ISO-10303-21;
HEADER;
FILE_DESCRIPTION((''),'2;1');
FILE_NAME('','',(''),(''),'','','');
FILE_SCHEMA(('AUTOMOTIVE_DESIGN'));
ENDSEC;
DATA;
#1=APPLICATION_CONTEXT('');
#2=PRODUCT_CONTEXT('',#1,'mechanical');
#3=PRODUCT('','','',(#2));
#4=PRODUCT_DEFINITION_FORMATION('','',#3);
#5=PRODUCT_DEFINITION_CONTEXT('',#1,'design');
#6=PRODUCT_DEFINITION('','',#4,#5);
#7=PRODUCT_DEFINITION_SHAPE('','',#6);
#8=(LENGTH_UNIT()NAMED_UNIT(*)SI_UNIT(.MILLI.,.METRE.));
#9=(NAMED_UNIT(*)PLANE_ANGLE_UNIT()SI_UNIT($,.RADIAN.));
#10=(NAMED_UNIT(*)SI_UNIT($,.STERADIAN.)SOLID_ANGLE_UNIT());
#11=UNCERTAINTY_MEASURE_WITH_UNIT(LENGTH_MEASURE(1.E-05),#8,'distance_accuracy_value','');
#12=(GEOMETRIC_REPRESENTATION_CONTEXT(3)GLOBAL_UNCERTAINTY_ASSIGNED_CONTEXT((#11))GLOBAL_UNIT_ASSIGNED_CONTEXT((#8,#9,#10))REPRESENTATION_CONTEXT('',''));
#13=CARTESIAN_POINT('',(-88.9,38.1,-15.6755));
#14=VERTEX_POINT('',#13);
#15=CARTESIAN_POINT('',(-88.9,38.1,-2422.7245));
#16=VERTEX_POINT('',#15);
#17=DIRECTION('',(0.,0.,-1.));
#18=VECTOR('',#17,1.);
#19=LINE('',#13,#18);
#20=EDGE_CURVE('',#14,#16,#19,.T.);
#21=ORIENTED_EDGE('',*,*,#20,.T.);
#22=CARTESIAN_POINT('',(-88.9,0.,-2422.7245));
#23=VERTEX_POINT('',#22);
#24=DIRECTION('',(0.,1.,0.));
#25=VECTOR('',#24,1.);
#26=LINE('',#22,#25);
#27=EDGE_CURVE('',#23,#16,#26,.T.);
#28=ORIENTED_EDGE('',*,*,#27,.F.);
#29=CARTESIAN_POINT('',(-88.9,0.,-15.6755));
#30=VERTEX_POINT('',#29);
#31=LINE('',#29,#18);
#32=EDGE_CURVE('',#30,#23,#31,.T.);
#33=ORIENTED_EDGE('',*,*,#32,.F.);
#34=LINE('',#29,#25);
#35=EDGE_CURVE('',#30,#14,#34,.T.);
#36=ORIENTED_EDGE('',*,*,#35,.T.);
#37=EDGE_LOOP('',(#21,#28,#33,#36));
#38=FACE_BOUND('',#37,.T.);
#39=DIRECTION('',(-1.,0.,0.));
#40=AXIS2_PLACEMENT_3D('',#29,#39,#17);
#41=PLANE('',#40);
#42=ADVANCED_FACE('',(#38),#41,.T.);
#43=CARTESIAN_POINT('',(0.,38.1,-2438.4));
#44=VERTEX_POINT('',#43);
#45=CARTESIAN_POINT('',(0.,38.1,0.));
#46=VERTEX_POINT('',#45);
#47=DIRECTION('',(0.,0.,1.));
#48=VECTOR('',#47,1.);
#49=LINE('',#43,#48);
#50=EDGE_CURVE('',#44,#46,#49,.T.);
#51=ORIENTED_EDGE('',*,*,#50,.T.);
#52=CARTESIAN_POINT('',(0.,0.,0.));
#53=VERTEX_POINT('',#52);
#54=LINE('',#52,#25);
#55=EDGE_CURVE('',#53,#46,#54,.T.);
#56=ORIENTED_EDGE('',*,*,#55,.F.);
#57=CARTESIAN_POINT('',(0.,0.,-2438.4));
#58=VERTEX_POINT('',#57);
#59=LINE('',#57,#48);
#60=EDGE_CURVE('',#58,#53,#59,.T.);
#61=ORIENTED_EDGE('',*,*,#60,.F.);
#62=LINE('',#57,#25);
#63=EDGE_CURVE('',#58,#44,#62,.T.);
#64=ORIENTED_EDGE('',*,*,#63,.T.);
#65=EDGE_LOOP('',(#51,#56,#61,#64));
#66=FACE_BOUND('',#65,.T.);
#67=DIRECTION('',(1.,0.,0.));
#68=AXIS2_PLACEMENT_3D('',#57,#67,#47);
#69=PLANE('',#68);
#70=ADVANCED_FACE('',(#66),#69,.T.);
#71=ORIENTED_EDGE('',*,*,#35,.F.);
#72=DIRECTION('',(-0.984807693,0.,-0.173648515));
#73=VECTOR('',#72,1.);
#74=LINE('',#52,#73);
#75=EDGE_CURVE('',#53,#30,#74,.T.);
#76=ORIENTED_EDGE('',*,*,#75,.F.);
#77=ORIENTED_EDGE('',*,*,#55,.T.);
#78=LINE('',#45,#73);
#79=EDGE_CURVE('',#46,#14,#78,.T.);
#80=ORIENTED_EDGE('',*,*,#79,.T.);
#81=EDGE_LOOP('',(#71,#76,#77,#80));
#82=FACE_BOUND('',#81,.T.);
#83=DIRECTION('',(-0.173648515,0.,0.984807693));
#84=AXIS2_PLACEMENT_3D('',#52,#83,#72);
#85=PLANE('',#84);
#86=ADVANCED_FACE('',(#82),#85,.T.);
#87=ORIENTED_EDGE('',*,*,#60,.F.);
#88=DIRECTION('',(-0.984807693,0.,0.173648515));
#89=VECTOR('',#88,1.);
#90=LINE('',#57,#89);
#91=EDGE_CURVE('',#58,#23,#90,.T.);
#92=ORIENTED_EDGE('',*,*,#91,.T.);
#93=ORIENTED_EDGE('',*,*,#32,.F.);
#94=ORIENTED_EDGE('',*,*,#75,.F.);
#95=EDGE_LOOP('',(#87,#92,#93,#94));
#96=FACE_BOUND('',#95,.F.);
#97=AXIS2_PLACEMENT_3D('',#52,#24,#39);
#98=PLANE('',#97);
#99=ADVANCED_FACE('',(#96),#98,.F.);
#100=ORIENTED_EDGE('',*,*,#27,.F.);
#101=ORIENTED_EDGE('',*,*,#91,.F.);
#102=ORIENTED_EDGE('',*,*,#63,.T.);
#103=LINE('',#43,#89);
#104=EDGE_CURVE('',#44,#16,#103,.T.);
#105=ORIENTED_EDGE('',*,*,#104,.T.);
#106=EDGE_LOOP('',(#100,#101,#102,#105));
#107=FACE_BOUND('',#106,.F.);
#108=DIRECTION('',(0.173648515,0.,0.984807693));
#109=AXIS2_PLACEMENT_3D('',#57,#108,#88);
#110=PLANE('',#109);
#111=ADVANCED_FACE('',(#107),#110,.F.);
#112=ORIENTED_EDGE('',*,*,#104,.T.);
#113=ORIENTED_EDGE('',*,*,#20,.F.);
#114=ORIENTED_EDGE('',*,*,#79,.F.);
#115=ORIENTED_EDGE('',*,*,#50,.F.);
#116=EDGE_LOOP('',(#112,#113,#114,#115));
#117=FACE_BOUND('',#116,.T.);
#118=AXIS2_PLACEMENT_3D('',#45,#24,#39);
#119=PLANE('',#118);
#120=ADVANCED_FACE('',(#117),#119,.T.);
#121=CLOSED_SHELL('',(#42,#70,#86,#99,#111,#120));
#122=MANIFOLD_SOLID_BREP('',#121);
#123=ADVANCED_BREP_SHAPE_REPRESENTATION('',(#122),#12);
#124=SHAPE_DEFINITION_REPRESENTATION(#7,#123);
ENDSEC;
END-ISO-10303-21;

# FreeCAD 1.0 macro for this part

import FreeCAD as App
import Part
import Sketcher
Q = App.Units.Quantity

doc = App.newDocument("Part")
body = doc.addObject("PartDesign::Body", "Body")

# Sketch on XZ plane
sketch1 = body.newObject("Sketcher::SketchObject", "Sketch")
sketch1.AttachmentSupport = (doc.getObject("XZ_Plane"), [""])
sketch1.MapMode = "FlatFace"
sketch1.addGeometry([
    Part.LineSegment(App.Vector(0, 0, 0), App.Vector(0, -2438.4, 0)),
    Part.LineSegment(App.Vector(0, -2438.4, 0), App.Vector(-88.9, -2422.7245, 0)),
    Part.LineSegment(App.Vector(-88.9, -2422.7245, 0), App.Vector(-88.9, -15.6755, 0)),
    Part.LineSegment(App.Vector(-88.9, -15.6755, 0), App.Vector(0, 0, 0)),
], False)
sketch1.addConstraint([
    Sketcher.Constraint("Coincident", 0, 2, 1, 1),
    Sketcher.Constraint("Coincident", 1, 2, 2, 1),
    Sketcher.Constraint("Coincident", 2, 2, 3, 1),
    Sketcher.Constraint("Coincident", 3, 2, 0, 1),
    Sketcher.Constraint("Vertical", 0),
    Sketcher.Constraint("Vertical", 2),
    Sketcher.Constraint("Coincident", 3, 2, -1, 1),
    Sketcher.Constraint("Equal", 1, 3),
    Sketcher.Constraint("DistanceY", 0, 2, 0, 1, Q("96 in")),
    Sketcher.Constraint("Angle", 1, Q("170 deg")),
    Sketcher.Constraint("DistanceX", 1, 2, -1, 1, Q("3.5 in")),
])
pad1 = body.newObject("PartDesign::Pad", "Pad")
pad1.Profile = sketch1
pad1.Length = Q("1.5 in")
pad1.Reversed = True

doc.recompute()
